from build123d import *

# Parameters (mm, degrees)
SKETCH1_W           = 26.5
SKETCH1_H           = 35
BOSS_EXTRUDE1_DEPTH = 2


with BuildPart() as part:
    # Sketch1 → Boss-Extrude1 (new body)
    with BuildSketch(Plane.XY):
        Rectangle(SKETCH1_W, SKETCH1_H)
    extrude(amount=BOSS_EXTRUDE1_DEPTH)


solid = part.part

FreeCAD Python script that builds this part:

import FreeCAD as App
import Part
import Sketcher
from FreeCAD import Vector
Q = App.Units.Quantity


def add_polygon(sketch, points):
    """Adds a closed chain of lines whose ends are joined by coincident constraints."""
    first, n = sketch.GeometryCount, len(points)
    for a, b in zip(points, points[1:] + points[:1]):
        sketch.addGeometry(Part.LineSegment(App.Vector(*a, 0), App.Vector(*b, 0)), False)
    for i in range(n):
        sketch.addConstraint(Sketcher.Constraint("Coincident", first + i, 2, first + (i + 1) % n, 1))

doc = App.newDocument("Part")
body = doc.addObject("PartDesign::Body", "Body")

sketch1 = body.newObject("Sketcher::SketchObject", "Sketch")
sketch1.AttachmentSupport = (doc.getObject("XY_Plane"), [""])
sketch1.MapMode = "FlatFace"
add_polygon(sketch1, [(-13, 18), (-13, -18), (13, -18), (13, 18)])
sketch1.addConstraint(Sketcher.Constraint("Vertical", 0))
sketch1.addConstraint(Sketcher.Constraint("Horizontal", 1))
sketch1.addConstraint(Sketcher.Constraint("Vertical", 2))
sketch1.addConstraint(Sketcher.Constraint("Horizontal", 3))
sketch1.addConstraint(Sketcher.Constraint("Symmetric", 0, 2, 2, 2, -1, 1))
sketch1.addConstraint(Sketcher.Constraint("DistanceY", 0, 2, 0, 1, Q("35 mm")))
sketch1.addConstraint(Sketcher.Constraint("DistanceX", 1, 1, 1, 2, Q("26.5 mm")))
pad1 = body.newObject("PartDesign::Pad", "Pad")
pad1.Profile = sketch1
pad1.Length = 2

doc.recompute()
